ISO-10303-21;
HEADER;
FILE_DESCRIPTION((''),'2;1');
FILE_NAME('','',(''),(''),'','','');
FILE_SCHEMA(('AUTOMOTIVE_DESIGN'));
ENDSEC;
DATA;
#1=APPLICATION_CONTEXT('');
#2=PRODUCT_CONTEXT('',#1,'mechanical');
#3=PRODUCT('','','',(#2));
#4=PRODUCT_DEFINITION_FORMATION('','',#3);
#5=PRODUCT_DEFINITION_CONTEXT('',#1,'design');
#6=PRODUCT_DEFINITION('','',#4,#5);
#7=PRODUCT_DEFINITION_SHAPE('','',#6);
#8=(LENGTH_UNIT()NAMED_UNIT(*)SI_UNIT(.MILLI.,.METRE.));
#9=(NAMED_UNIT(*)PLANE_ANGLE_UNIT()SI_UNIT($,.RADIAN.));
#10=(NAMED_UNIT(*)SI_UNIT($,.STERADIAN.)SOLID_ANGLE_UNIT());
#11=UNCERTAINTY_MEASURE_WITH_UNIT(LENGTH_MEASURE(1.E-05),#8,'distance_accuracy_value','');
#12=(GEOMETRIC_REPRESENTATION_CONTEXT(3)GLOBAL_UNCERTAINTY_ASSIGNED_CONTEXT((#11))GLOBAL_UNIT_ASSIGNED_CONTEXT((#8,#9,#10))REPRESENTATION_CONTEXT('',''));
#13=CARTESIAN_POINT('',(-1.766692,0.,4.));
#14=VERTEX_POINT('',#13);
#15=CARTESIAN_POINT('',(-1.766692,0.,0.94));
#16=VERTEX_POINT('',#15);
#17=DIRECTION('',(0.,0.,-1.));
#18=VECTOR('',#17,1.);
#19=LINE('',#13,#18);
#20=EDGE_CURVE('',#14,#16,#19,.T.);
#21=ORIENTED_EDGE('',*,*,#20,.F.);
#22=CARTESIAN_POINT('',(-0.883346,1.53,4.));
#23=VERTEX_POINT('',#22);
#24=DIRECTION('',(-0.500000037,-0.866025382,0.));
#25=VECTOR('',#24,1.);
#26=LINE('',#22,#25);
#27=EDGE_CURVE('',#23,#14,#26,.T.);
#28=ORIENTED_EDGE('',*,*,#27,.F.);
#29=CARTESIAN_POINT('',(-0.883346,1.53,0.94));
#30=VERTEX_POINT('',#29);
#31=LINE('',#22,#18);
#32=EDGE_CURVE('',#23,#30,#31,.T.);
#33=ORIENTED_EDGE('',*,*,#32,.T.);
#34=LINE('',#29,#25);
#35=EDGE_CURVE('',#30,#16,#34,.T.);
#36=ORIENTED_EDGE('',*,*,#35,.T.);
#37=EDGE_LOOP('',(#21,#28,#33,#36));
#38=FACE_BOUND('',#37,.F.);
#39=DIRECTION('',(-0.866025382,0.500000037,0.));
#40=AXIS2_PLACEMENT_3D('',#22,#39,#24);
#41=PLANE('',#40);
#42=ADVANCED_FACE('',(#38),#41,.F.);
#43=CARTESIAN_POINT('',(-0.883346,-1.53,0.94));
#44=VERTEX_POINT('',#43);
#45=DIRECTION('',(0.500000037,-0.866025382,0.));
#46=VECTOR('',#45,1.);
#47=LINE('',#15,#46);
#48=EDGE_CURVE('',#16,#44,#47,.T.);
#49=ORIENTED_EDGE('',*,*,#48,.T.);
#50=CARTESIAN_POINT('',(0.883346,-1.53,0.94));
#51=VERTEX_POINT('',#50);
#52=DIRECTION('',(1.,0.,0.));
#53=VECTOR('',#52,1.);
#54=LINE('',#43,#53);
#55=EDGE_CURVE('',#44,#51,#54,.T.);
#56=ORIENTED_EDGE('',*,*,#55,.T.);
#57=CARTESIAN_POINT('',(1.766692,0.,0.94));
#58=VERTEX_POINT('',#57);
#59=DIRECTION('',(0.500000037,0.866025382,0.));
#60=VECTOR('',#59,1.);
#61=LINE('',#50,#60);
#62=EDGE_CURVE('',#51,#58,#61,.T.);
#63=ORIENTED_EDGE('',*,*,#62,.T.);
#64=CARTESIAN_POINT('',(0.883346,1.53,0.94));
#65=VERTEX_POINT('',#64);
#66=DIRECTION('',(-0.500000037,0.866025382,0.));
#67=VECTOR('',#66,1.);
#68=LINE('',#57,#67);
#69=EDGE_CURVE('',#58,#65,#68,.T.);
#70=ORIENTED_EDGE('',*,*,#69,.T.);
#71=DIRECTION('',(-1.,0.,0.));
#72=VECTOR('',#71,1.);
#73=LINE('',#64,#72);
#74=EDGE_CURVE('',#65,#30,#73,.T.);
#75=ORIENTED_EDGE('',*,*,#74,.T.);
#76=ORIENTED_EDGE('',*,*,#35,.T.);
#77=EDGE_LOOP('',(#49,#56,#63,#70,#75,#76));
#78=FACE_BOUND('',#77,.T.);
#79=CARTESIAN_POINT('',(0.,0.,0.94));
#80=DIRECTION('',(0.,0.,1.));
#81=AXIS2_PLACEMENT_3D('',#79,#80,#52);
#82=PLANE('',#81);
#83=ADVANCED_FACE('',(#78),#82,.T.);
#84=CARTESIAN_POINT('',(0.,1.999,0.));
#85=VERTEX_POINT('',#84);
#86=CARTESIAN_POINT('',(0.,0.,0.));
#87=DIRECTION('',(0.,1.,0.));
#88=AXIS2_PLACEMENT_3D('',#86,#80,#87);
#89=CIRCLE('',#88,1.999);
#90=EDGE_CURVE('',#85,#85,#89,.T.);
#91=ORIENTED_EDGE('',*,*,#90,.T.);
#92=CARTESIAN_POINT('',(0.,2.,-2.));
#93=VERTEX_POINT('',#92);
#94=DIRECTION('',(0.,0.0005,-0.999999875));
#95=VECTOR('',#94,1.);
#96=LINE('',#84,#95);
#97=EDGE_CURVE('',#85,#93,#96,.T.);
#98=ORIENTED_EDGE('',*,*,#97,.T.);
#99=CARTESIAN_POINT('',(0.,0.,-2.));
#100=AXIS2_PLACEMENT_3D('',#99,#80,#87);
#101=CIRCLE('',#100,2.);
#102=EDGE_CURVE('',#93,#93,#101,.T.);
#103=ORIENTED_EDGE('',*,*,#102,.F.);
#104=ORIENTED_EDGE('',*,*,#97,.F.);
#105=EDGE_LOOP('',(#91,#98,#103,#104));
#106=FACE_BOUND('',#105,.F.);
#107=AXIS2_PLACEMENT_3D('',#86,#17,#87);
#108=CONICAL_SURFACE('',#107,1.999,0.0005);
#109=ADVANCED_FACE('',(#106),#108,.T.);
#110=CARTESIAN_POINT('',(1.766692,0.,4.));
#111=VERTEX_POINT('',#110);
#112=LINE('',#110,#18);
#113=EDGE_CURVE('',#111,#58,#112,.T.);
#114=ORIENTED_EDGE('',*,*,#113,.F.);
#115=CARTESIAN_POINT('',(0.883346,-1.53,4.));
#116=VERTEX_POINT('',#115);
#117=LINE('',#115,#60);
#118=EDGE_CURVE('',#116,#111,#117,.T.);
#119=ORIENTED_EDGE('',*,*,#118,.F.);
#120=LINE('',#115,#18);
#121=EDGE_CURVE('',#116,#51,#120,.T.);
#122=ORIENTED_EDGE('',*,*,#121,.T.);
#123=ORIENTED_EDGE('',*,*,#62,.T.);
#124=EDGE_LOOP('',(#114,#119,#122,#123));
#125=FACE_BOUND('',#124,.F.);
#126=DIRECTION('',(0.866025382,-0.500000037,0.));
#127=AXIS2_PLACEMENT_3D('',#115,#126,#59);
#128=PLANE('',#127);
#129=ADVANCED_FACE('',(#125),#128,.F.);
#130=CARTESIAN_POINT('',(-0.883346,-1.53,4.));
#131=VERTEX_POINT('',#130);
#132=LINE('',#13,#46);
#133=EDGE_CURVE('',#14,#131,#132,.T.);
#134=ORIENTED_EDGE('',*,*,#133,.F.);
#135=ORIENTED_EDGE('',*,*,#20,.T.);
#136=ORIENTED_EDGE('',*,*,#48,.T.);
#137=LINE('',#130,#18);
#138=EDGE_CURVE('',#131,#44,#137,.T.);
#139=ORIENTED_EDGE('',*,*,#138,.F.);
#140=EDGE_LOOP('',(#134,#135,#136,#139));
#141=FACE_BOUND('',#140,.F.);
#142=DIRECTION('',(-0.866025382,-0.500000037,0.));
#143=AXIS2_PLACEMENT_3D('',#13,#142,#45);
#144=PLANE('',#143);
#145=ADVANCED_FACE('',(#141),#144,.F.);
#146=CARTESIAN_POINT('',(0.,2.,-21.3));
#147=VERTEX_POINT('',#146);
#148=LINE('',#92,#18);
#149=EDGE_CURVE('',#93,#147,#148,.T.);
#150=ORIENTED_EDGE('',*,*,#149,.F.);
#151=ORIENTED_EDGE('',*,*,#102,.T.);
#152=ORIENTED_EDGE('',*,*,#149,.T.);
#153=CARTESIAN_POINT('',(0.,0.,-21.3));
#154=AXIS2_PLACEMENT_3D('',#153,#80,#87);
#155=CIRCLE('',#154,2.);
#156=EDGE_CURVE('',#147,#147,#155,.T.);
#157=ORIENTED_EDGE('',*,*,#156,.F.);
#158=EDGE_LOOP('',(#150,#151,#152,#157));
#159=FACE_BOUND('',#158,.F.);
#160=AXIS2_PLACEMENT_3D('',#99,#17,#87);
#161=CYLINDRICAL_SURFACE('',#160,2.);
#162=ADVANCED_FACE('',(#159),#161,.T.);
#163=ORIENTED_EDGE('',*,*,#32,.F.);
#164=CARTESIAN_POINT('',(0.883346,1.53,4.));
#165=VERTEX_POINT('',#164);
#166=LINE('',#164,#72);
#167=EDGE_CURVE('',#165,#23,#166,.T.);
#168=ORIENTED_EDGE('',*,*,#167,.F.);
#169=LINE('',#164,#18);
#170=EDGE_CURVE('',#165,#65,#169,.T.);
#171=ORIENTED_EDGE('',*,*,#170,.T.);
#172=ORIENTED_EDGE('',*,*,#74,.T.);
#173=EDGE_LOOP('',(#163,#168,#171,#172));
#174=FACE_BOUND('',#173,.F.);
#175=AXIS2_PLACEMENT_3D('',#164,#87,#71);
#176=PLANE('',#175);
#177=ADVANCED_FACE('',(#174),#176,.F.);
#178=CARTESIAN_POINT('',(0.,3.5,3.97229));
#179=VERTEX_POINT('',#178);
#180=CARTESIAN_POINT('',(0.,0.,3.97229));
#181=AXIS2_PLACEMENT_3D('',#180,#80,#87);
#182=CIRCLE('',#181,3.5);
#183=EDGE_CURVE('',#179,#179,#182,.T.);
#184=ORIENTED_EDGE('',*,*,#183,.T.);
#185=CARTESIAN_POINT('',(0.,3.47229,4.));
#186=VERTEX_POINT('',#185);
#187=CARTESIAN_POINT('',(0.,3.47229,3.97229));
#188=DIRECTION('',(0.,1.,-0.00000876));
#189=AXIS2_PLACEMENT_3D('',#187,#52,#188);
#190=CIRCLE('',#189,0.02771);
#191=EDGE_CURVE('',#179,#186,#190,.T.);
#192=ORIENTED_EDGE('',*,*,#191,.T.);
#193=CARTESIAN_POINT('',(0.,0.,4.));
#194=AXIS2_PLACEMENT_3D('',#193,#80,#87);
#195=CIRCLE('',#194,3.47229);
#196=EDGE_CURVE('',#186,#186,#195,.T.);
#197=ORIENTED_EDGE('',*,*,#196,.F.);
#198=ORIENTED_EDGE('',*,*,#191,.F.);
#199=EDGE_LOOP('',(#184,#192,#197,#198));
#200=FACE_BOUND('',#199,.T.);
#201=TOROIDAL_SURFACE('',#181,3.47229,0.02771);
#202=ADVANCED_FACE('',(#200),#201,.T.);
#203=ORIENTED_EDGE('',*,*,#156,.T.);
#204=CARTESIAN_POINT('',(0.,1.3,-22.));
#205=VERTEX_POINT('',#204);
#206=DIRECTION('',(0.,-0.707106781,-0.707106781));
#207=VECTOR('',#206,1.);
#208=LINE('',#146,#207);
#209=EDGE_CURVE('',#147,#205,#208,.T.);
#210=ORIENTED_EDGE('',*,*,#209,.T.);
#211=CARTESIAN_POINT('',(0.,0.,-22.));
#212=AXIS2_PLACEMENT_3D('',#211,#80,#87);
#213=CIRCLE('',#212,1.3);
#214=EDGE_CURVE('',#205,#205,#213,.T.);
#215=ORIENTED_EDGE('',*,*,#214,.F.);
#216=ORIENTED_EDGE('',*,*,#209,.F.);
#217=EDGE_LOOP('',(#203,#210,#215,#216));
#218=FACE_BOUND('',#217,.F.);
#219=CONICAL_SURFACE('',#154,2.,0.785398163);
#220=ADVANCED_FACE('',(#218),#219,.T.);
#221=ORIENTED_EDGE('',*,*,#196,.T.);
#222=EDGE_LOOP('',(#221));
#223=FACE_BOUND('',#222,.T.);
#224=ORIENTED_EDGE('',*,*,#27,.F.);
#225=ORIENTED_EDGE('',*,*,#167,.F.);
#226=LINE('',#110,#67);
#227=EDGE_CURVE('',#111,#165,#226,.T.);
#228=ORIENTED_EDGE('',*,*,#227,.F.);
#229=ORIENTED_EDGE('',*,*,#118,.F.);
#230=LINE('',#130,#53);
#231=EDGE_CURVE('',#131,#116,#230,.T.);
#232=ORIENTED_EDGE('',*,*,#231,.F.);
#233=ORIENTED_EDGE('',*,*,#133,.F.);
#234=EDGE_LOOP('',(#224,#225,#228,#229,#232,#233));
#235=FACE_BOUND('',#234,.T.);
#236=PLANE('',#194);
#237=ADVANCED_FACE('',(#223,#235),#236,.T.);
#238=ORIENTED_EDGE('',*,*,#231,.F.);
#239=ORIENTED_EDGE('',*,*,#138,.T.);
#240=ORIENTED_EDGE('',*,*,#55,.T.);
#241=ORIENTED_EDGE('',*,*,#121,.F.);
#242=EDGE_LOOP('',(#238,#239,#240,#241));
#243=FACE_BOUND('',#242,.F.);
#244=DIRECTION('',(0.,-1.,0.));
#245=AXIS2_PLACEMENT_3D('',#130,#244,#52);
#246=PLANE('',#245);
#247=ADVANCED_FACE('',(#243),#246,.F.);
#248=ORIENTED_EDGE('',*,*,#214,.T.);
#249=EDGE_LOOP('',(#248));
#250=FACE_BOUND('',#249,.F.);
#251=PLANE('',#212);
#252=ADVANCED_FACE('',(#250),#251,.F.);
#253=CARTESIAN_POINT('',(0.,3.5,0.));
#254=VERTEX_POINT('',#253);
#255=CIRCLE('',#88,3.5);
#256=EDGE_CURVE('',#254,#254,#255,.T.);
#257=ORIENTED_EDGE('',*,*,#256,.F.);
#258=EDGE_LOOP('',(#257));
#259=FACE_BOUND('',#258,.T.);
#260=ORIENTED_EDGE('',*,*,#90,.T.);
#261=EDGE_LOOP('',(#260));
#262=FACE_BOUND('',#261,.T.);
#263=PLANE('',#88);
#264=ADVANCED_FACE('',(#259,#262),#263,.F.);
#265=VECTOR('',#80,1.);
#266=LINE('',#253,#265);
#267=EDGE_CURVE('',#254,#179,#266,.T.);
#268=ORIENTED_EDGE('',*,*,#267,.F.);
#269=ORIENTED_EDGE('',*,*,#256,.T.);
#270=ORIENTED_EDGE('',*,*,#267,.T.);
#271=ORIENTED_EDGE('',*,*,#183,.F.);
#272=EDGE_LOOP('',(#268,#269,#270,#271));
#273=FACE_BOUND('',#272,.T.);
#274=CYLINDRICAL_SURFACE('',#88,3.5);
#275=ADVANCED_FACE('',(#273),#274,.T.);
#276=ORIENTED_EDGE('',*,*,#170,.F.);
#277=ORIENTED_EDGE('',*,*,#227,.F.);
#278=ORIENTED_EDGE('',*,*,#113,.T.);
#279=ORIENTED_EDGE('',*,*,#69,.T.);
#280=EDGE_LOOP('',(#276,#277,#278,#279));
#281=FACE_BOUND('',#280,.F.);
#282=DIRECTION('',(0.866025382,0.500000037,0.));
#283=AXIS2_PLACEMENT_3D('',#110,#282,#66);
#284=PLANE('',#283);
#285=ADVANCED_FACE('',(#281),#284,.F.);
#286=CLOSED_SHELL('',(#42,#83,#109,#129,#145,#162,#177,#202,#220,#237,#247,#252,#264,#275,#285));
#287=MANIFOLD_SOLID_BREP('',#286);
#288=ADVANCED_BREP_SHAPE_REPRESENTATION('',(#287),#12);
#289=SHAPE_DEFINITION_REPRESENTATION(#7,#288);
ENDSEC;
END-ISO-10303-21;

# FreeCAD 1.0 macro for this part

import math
import FreeCAD as App
import Part
import Sketcher
from FreeCAD import Vector
Q = App.Units.Quantity


def add_polygon(sketch, points):
    """Adds a closed chain of lines whose ends are joined by coincident constraints."""
    first, n = sketch.GeometryCount, len(points)
    for a, b in zip(points, points[1:] + points[:1]):
        sketch.addGeometry(Part.LineSegment(App.Vector(*a, 0), App.Vector(*b, 0)), False)
    for i in range(n):
        sketch.addConstraint(Sketcher.Constraint("Coincident", first + i, 2, first + (i + 1) % n, 1))

doc = App.newDocument("Part")
body = doc.addObject("PartDesign::Body", "Body")

# Sketch on YZ plane
sketch1 = doc.addObject("Sketcher::SketchObject", "Sketch")
body.addObject(sketch1)
sketch1.AttachmentSupport = (doc.YZ_Plane, [""])
sketch1.MapMode = "FlatFace"
sketch1.addGeometry([
    Part.LineSegment(Vector(1.999, 0, 0), Vector(3.5, 0, 0)),  # 0
    Part.LineSegment(Vector(3.5, 0, 0), Vector(3.5, 3.97229, 0)),  # 1
    Part.ArcOfCircle(Part.Circle(Vector(3.47229, 3.97229, 0), Vector(0, 0, 1), 0.02771), math.radians(-0.000502), math.radians(90.000502)),  # 2
    Part.LineSegment(Vector(3.47229, 4, 0), Vector(0, 4, 0)),  # 3
    Part.LineSegment(Vector(0, 4, 0), Vector(0, -22, 0)),  # 4
    Part.LineSegment(Vector(0, -22, 0), Vector(1.3, -22, 0)),  # 5
    Part.LineSegment(Vector(1.3, -22, 0), Vector(2, -21.3, 0)),  # 6
    Part.LineSegment(Vector(2, -21.3, 0), Vector(2, -2, 0)),  # 7
    Part.LineSegment(Vector(2, -2, 0), Vector(1.999, 0, 0)),  # 8
], False)
sketch1.addConstraint([
    Sketcher.Constraint("Coincident", 0, 2, 1, 1),
    Sketcher.Constraint("Coincident", 1, 2, 2, 1),
    Sketcher.Constraint("Coincident", 2, 2, 3, 1),
    Sketcher.Constraint("Coincident", 3, 2, 4, 1),
    Sketcher.Constraint("Coincident", 4, 2, 5, 1),
    Sketcher.Constraint("Coincident", 5, 2, 6, 1),
    Sketcher.Constraint("Coincident", 6, 2, 7, 1),
    Sketcher.Constraint("Coincident", 7, 2, 8, 1),
    Sketcher.Constraint("Coincident", 8, 2, 0, 1),
    Sketcher.Constraint("Horizontal", 0),
    Sketcher.Constraint("Vertical", 1),
    Sketcher.Constraint("Horizontal", 3),
    Sketcher.Constraint("Vertical", 4),
    Sketcher.Constraint("Horizontal", 5),
    Sketcher.Constraint("Vertical", 7),
    Sketcher.Constraint("PointOnObject", 0, 2, -1),
    Sketcher.Constraint("PointOnObject", 3, 2, -2),
    Sketcher.Constraint("Horizontal", 2, 3, 1, 2),
    Sketcher.Constraint("DistanceY", 4, 2, 4, 1, Q("26 mm")),
    Sketcher.Constraint("Angle", 6, Q("45 deg")),
    Sketcher.Constraint("Distance", 8, Q("2 mm")),
    Sketcher.Constraint("DistanceX", 5, 1, 5, 2, Q("1.3 mm")),
    Sketcher.Constraint("DistanceY", 7, 1, 7, 2, Q("19.3 mm")),
    Sketcher.Constraint("DistanceY", -1, 1, 2, 2, Q("4 mm")),
    Sketcher.Constraint("DistanceX", -1, 1, 0, 2, Q("3.5 mm")),
    Sketcher.Constraint("DistanceX", 0, 1, 0, 2, Q("1.501 mm")),
    Sketcher.Constraint("Radius", 2, Q("0.02771 mm")),
    Sketcher.Constraint("DistanceX", 3, 2, 3, 1, Q("3.47229 mm")),
])
revolution = doc.addObject("PartDesign::Revolution", "Revolution")
body.addObject(revolution)
revolution.Profile = sketch1
revolution.ReferenceAxis = (sketch1, ["V_Axis"])
revolution.Angle = 360

# Sketch on XY plane
sketch2 = doc.addObject("Sketcher::SketchObject", "Sketch001")
body.addObject(sketch2)
sketch2.AttachmentSupport = (doc.XY_Plane, [""])
sketch2.MapMode = "FlatFace"
sketch2.AttachmentOffset = App.Placement(Vector(0, 0, 4), App.Rotation())
add_polygon(sketch2, [(1.766692, 0), (0.883346, 1.53), (-0.883346, 1.53), (-1.766692, 0), (-0.883346, -1.53), (0.883346, -1.53)])  # lines 0-5
sketch2.addConstraint([
    Sketcher.Constraint("Horizontal", 1),
    Sketcher.Constraint("Horizontal", 4),
    Sketcher.Constraint("Symmetric", 0, 2, 3, 2, -1, 1),
    Sketcher.Constraint("Symmetric", 2, 2, 5, 2, -1, 1),
    Sketcher.Constraint("PointOnObject", 2, 2, -1),
    Sketcher.Constraint("Parallel", 2, 5),
    Sketcher.Constraint("Vertical", 1, 2, 3, 2),
    Sketcher.Constraint("Angle", 0, Q("120.000002 deg")),
    Sketcher.Constraint("DistanceY", -1, 1, 0, 2, Q("1.53 mm")),
    Sketcher.Constraint("DistanceX", 1, 2, 1, 1, Q("1.766692 mm")),
])
pocket1 = doc.addObject("PartDesign::Pocket", "Pocket")
body.addObject(pocket1)
pocket1.Profile = sketch2
pocket1.Length = 3.06

doc.recompute()
